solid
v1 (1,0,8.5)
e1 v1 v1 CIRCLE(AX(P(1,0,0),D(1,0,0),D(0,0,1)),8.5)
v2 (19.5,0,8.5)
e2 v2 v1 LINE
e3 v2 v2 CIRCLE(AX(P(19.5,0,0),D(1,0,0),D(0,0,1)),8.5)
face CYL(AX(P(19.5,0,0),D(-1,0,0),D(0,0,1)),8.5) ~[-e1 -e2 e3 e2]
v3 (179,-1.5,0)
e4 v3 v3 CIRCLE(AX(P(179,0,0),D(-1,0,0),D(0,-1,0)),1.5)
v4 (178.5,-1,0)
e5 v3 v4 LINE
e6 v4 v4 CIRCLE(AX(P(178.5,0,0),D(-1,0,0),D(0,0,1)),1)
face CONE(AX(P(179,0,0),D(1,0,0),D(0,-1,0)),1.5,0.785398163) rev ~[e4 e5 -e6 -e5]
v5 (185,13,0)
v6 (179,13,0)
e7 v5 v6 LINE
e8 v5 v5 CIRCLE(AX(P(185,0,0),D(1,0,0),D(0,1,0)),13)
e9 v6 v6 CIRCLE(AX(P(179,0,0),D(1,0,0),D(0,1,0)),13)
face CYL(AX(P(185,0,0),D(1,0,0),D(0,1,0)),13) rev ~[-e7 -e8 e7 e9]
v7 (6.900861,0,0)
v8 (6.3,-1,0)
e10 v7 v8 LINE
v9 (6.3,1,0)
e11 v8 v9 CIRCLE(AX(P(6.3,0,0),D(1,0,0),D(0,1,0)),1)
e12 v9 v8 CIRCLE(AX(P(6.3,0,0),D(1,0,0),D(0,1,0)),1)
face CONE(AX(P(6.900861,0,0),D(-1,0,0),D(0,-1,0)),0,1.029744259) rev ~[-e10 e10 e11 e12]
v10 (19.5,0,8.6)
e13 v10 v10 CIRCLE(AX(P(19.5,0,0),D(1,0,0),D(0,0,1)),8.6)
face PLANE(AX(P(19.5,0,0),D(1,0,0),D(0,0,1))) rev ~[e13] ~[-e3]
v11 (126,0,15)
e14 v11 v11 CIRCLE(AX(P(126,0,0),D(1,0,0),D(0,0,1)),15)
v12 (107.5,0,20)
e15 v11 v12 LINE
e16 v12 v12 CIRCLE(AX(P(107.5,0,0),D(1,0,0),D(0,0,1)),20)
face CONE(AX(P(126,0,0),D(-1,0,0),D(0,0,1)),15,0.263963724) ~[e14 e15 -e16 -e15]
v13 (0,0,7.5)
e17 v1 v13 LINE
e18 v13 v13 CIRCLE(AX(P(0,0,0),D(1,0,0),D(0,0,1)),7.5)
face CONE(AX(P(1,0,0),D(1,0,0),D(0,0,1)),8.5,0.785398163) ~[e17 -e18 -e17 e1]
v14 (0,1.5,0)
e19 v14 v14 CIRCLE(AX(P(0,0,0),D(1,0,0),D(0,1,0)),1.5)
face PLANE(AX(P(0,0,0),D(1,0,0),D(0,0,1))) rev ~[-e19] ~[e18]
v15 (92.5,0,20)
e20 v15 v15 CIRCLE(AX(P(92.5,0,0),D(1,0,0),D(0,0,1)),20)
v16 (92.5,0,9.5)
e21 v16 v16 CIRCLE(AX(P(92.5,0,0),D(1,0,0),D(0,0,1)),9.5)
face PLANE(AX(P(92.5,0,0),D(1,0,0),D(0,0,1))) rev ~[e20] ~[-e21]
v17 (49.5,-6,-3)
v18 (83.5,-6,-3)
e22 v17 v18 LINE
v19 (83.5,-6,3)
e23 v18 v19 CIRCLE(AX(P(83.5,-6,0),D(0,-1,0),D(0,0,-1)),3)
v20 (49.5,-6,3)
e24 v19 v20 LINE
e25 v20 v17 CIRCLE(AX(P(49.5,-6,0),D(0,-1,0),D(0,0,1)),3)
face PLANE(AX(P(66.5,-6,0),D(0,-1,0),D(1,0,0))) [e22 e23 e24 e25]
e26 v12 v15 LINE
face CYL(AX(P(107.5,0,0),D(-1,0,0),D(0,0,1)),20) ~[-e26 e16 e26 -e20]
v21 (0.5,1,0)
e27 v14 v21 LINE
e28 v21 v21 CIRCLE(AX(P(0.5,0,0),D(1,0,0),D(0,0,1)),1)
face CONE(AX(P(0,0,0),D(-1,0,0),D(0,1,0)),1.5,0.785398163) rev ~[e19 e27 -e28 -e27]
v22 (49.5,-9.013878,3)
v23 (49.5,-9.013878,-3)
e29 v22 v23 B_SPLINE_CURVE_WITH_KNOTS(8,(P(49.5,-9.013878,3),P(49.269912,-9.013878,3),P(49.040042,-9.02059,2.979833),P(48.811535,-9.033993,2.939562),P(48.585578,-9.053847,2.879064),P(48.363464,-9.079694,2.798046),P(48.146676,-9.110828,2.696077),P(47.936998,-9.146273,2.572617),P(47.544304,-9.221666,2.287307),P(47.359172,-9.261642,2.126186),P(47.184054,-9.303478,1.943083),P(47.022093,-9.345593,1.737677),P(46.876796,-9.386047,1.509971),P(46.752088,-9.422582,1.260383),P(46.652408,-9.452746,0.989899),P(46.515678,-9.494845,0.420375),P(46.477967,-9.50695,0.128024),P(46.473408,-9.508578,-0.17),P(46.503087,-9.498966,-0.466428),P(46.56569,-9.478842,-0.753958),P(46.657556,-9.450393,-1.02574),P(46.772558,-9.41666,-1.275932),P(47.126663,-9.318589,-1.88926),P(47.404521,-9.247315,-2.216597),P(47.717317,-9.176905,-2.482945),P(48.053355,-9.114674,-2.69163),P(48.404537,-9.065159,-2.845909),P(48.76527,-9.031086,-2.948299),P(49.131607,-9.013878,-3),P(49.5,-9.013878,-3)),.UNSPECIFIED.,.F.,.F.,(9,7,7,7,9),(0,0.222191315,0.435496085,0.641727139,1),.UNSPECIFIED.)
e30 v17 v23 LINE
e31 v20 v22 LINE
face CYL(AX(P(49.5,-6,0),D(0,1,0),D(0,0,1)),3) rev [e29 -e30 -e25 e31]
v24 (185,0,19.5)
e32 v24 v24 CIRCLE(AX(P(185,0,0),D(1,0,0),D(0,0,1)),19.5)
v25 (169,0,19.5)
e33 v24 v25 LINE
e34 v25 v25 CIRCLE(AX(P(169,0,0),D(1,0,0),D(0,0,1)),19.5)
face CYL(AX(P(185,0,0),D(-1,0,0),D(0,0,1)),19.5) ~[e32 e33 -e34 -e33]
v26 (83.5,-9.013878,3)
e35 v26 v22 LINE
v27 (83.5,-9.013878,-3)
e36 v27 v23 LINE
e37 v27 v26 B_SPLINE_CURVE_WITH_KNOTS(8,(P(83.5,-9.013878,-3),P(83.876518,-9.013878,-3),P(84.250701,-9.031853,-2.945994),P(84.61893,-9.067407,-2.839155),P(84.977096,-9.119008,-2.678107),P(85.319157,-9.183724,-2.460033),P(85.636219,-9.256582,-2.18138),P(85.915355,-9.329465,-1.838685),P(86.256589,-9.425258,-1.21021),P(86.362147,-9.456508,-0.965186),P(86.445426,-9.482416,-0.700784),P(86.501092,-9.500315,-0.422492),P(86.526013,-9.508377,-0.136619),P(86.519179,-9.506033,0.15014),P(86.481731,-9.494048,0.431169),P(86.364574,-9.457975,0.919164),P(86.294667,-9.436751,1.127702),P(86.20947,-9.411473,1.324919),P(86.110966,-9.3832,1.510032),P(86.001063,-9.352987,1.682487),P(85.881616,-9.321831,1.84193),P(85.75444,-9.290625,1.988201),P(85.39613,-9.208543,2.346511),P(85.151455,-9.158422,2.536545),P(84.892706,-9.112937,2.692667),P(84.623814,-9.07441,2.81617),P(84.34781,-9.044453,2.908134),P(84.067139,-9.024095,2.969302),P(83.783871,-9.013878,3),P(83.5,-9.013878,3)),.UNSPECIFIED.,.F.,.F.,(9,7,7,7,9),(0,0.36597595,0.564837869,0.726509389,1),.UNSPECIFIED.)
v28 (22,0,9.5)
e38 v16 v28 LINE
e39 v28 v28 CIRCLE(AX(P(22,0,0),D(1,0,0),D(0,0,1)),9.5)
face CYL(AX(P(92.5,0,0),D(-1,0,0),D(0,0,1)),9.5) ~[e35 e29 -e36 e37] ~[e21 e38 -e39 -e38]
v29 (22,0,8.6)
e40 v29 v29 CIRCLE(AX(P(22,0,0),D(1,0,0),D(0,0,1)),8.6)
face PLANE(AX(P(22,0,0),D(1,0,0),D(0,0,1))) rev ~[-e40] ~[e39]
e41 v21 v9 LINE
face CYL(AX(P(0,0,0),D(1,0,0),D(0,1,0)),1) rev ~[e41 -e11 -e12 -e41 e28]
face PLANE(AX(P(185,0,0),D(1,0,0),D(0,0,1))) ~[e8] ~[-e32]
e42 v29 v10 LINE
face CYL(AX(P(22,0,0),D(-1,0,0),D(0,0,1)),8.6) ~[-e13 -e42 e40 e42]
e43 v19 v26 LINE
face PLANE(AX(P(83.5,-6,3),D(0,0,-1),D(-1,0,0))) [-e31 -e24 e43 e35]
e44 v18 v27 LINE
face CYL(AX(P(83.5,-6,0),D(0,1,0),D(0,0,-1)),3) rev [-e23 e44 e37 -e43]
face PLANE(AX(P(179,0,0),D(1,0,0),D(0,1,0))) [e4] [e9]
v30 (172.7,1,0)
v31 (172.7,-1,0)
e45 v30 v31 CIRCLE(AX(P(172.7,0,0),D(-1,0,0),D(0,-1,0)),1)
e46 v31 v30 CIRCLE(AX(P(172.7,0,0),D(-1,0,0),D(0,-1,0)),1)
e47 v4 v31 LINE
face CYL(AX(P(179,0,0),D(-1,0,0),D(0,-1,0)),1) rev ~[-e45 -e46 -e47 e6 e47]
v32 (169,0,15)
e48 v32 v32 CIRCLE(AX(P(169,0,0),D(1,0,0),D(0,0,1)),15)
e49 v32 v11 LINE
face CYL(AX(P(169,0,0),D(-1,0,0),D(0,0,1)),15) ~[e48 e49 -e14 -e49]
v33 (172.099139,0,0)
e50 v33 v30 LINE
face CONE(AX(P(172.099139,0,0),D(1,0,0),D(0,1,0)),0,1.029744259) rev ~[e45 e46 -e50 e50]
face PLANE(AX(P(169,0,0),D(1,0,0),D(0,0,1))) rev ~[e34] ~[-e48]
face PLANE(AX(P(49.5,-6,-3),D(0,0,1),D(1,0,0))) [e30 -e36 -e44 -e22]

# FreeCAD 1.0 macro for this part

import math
import FreeCAD as App
import Part
import Sketcher
from FreeCAD import Vector
Q = App.Units.Quantity


def add_polygon(sketch, points):
    """Adds a closed chain of lines whose ends are joined by coincident constraints."""
    first, n = sketch.GeometryCount, len(points)
    for a, b in zip(points, points[1:] + points[:1]):
        sketch.addGeometry(Part.LineSegment(App.Vector(*a, 0), App.Vector(*b, 0)), False)
    for i in range(n):
        sketch.addConstraint(Sketcher.Constraint("Coincident", first + i, 2, first + (i + 1) % n, 1))

doc = App.newDocument("Part")
body = doc.addObject("PartDesign::Body", "Body")

sketch1 = doc.addObject("Sketcher::SketchObject", "Sketch")
body.addObject(sketch1)
sketch1.AttachmentSupport = (doc.XZ_Plane, [""])
sketch1.MapMode = "FlatFace"
add_polygon(sketch1, [(1, 8.5), (0, 7.5), (0, 0), (185, 0), (185, 19.5), (169, 19.5), (169, 15), (126, 15), (107.5, 20), (92.5, 20), (92.5, 9.5), (22, 9.5), (22, 8.6), (19.5, 8.6), (19.5, 8.5)])
sketch1.addConstraint([
    Sketcher.Constraint("Vertical", 1),
    Sketcher.Constraint("Horizontal", 2),
    Sketcher.Constraint("Vertical", 3),
    Sketcher.Constraint("Horizontal", 4),
    Sketcher.Constraint("Vertical", 5),
    Sketcher.Constraint("Horizontal", 6),
    Sketcher.Constraint("Horizontal", 8),
    Sketcher.Constraint("Vertical", 9),
    Sketcher.Constraint("Horizontal", 10),
    Sketcher.Constraint("Vertical", 11),
    Sketcher.Constraint("Horizontal", 12),
    Sketcher.Constraint("Vertical", 13),
    Sketcher.Constraint("Horizontal", 14),
    Sketcher.Constraint("Coincident", 1, 2, -1, 1),
    Sketcher.Constraint("DistanceX", 2, 1, 2, 2, Q("185 mm")),
    Sketcher.Constraint("DistanceX", 4, 2, 4, 1, Q("16 mm")),
    Sketcher.Constraint("DistanceX", 6, 2, 6, 1, Q("43 mm")),
    Sketcher.Constraint("DistanceX", 8, 2, 8, 1, Q("15 mm")),
    Sketcher.Constraint("Angle", 0, Q("-135 deg")),
    Sketcher.Constraint("DistanceX", 10, 2, 10, 1, Q("70.5 mm")),
    Sketcher.Constraint("DistanceX", 12, 2, 12, 1, Q("2.5 mm")),
    Sketcher.Constraint("DistanceX", 14, 2, 14, 1, Q("18.5 mm")),
    Sketcher.Constraint("DistanceY", 1, 2, 1, 1, Q("7.5 mm")),
    Sketcher.Constraint("DistanceY", 3, 1, 3, 2, Q("19.5 mm")),
    Sketcher.Constraint("DistanceY", 5, 2, 5, 1, Q("4.5 mm")),
    Sketcher.Constraint("DistanceY", 9, 2, 9, 1, Q("10.5 mm")),
    Sketcher.Constraint("DistanceY", 11, 2, 11, 1, Q("0.9 mm")),
    Sketcher.Constraint("DistanceY", 13, 2, 13, 1, Q("0.1 mm")),
    Sketcher.Constraint("DistanceY", -1, 1, 7, 2, Q("20 mm")),
])
revolution = doc.addObject("PartDesign::Revolution", "Revolution")
body.addObject(revolution)
revolution.Profile = sketch1
revolution.ReferenceAxis = (sketch1, ["H_Axis"])
revolution.Angle = 360

sketch2 = doc.addObject("Sketcher::SketchObject", "Sketch001")
body.addObject(sketch2)
sketch2.AttachmentSupport = (doc.XZ_Plane, [""])
sketch2.MapMode = "FlatFace"
sketch2.AttachmentOffset = App.Placement(Vector(0, 0, 6), App.Rotation())
sketch2.addGeometry([
    Part.ArcOfCircle(Part.Circle(Vector(83.5, 0, 0), Vector(0, 0, 1), 3), math.radians(-90), math.radians(90)),
    Part.LineSegment(Vector(83.5, 3, 0), Vector(49.5, 3, 0)),
    Part.ArcOfCircle(Part.Circle(Vector(49.5, 0, 0), Vector(0, 0, 1), 3), math.radians(90), math.radians(270)),
    Part.LineSegment(Vector(49.5, -3, 0), Vector(83.5, -3, 0)),
], False)
sketch2.addConstraint([
    Sketcher.Constraint("Tangent", 0, 2, 1, 1),
    Sketcher.Constraint("Tangent", 1, 2, 2, 1),
    Sketcher.Constraint("Tangent", 2, 2, 3, 1),
    Sketcher.Constraint("Tangent", 3, 2, 0, 1),
    Sketcher.Constraint("Horizontal", 1),
    Sketcher.Constraint("Horizontal", 3),
    Sketcher.Constraint("PointOnObject", 0, 3, -1),
    Sketcher.Constraint("Radius", 0, Q("3 mm")),
    Sketcher.Constraint("DistanceX", 1, 2, 1, 1, Q("34 mm")),
    Sketcher.Constraint("DistanceX", -1, 1, 0, 3, Q("83.5 mm")),
])
pocket1 = doc.addObject("PartDesign::Pocket", "Pocket")
body.addObject(pocket1)
pocket1.Profile = sketch2
pocket1.Length = 9.4
pocket1.Reversed = True

sketch3 = doc.addObject("Sketcher::SketchObject", "Sketch002")
body.addObject(sketch3)
sketch3.AttachmentSupport = (doc.YZ_Plane, [""])
sketch3.MapMode = "FlatFace"
sketch3.AttachmentOffset = App.Placement(Vector(0, 0, 185), App.Rotation())
sketch3.addGeometry(Part.Circle(Vector(0, 0, 0), Vector(0, 0, 1), 13), False)
sketch3.addConstraint([
    Sketcher.Constraint("Coincident", 0, 3, -1, 1),
    Sketcher.Constraint("Diameter", 0, Q("26 mm")),
])
pocket2 = doc.addObject("PartDesign::Pocket", "Pocket001")
body.addObject(pocket2)
pocket2.Profile = sketch3
pocket2.Length = 6

sketch4 = doc.addObject("Sketcher::SketchObject", "Sketch003")
body.addObject(sketch4)
sketch4.AttachmentSupport = (doc.YZ_Plane, [""])
sketch4.MapMode = "FlatFace"
sketch4.addGeometry(Part.Circle(Vector(0, 0, 0), Vector(0, 0, 1), 1), False)
sketch4.addConstraint([
    Sketcher.Constraint("Coincident", 0, 3, -1, 1),
    Sketcher.Constraint("Diameter", 0, Q("2 mm")),
])
doc.recompute()
hole = doc.addObject("PartDesign::Hole", "Hole")
body.addObject(hole)
hole.Profile = sketch4
hole.ThreadType = "None"
hole.Diameter = 2
hole.DepthType = "Dimension"
hole.Depth = 6.3
hole.DrillPoint = "Angled"
hole.DrillPointAngle = 118
hole.HoleCutType = "Countersink"
hole.HoleCutDiameter = 3
hole.HoleCutCountersinkAngle = 90
hole.Reversed = True

sketch5 = doc.addObject("Sketcher::SketchObject", "Sketch004")
body.addObject(sketch5)
sketch5.AttachmentSupport = (doc.YZ_Plane, [""])
sketch5.MapMode = "FlatFace"
sketch5.AttachmentOffset = App.Placement(Vector(0, 0, 179), App.Rotation())
sketch5.addGeometry(Part.Circle(Vector(0, 0, 0), Vector(0, 0, 1), 1), False)
sketch5.addConstraint([
    Sketcher.Constraint("Coincident", 0, 3, -1, 1),
    Sketcher.Constraint("Diameter", 0, Q("2 mm")),
])
doc.recompute()
hole2 = doc.addObject("PartDesign::Hole", "Hole001")
body.addObject(hole2)
hole2.Profile = sketch5
hole2.ThreadType = "None"
hole2.Diameter = 2
hole2.DepthType = "Dimension"
hole2.Depth = 6.3
hole2.DrillPoint = "Angled"
hole2.DrillPointAngle = 118
hole2.HoleCutType = "Countersink"
hole2.HoleCutDiameter = 3
hole2.HoleCutCountersinkAngle = 90

doc.recompute()
